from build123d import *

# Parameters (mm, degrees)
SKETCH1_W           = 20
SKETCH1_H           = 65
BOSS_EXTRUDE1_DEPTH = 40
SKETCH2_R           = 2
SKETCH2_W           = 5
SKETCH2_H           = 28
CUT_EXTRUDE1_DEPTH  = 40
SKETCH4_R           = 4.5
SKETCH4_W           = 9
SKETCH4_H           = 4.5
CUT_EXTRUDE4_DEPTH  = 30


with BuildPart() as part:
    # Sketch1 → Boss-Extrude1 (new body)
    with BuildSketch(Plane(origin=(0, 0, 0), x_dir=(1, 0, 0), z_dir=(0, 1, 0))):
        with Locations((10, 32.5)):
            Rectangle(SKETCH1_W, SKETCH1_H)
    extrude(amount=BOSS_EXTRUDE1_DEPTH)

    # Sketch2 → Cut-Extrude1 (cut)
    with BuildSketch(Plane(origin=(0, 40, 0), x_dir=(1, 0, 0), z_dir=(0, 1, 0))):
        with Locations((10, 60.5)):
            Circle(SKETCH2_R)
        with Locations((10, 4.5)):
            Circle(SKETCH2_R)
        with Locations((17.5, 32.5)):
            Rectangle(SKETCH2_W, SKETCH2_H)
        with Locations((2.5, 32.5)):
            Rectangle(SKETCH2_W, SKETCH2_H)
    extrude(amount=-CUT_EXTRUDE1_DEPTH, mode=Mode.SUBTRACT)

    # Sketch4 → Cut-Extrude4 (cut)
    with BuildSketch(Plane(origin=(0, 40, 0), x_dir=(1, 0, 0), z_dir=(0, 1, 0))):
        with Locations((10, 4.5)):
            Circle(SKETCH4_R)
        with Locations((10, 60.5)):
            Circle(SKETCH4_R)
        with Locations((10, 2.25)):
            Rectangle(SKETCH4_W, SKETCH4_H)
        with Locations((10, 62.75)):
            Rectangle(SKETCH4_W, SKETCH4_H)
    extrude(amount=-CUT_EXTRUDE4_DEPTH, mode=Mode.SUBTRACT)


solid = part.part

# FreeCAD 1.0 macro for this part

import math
import FreeCAD as App
import Part
import Sketcher


def add_polygon(sketch, points):
    """Adds a closed chain of lines whose ends are joined by coincident constraints."""
    first, n = sketch.GeometryCount, len(points)
    for a, b in zip(points, points[1:] + points[:1]):
        sketch.addGeometry(Part.LineSegment(App.Vector(*a, 0), App.Vector(*b, 0)), False)
    for i in range(n):
        sketch.addConstraint(Sketcher.Constraint("Coincident", first + i, 2, first + (i + 1) % n, 1))

doc = App.newDocument("Part")
body = doc.addObject("PartDesign::Body", "Body")

# Sketch on XZ plane
sketch1 = doc.addObject("Sketcher::SketchObject", "Sketch")
body.addObject(sketch1)
sketch1.AttachmentSupport = (doc.XZ_Plane, [""])
sketch1.MapMode = "FlatFace"
add_polygon(sketch1, [(0, -65), (0, 0), (20, 0), (20, -65)])  # lines 0-3
sketch1.addConstraint(Sketcher.Constraint("Vertical", 0))
sketch1.addConstraint(Sketcher.Constraint("Horizontal", 1))
sketch1.addConstraint(Sketcher.Constraint("Vertical", 2))
sketch1.addConstraint(Sketcher.Constraint("Horizontal", 3))
sketch1.addConstraint(Sketcher.Constraint("Coincident", 0, 2, -1, 1))
sketch1.addConstraint(Sketcher.Constraint("DistanceX", 1, 1, 1, 2, 20.0))
sketch1.addConstraint(Sketcher.Constraint("DistanceY", 0, 1, 0, 2, 65.0))
pad1 = doc.addObject("PartDesign::Pad", "Pad")
body.addObject(pad1)
pad1.Profile = sketch1
pad1.Length = 40
pad1.Reversed = True

# Sketch on XZ plane
sketch2 = doc.addObject("Sketcher::SketchObject", "Sketch001")
body.addObject(sketch2)
sketch2.AttachmentSupport = (doc.XZ_Plane, [""])
sketch2.MapMode = "FlatFace"
sketch2.AttachmentOffset = App.Placement(App.Vector(0, 0, -40), App.Rotation())
sketch2.addGeometry(Part.Circle(App.Vector(10, -60.5, 0), App.Vector(0, 0, 1), 2), False)  # 0
sketch2.addGeometry(Part.Circle(App.Vector(10, -4.5, 0), App.Vector(0, 0, 1), 2), False)  # 1
add_polygon(sketch2, [(15, -46.5), (15, -18.5), (20, -18.5), (20, -46.5)])  # lines 2-5
add_polygon(sketch2, [(0, -46.5), (0, -18.5), (5, -18.5), (5, -46.5)])  # lines 6-9
sketch2.addConstraint(Sketcher.Constraint("Vertical", 2))
sketch2.addConstraint(Sketcher.Constraint("Horizontal", 3))
sketch2.addConstraint(Sketcher.Constraint("Vertical", 4))
sketch2.addConstraint(Sketcher.Constraint("Horizontal", 5))
sketch2.addConstraint(Sketcher.Constraint("Vertical", 6))
sketch2.addConstraint(Sketcher.Constraint("Horizontal", 7))
sketch2.addConstraint(Sketcher.Constraint("Vertical", 8))
sketch2.addConstraint(Sketcher.Constraint("Horizontal", 9))
sketch2.addConstraint(Sketcher.Constraint("Equal", 0, 1))
sketch2.addConstraint(Sketcher.Constraint("PointOnObject", 6, 2, -2))
sketch2.addConstraint(Sketcher.Constraint("Horizontal", 3, 2, 6, 2))
sketch2.addConstraint(Sketcher.Constraint("Horizontal", 5, 2, 8, 2))
sketch2.addConstraint(Sketcher.Constraint("Vertical", 0, 3, 1, 3))
sketch2.addConstraint(Sketcher.Constraint("Equal", 5, 7))
sketch2.addConstraint(Sketcher.Constraint("Diameter", 0, 4.0))
sketch2.addConstraint(Sketcher.Constraint("DistanceX", 3, 1, 3, 2, 5.0))
sketch2.addConstraint(Sketcher.Constraint("DistanceY", 2, 1, 2, 2, 28.0))
sketch2.addConstraint(Sketcher.Constraint("DistanceX", -1, 1, 0, 3, 10.0))
sketch2.addConstraint(Sketcher.Constraint("DistanceX", -1, 1, 2, 2, 15.0))
sketch2.addConstraint(Sketcher.Constraint("DistanceY", 0, 3, 1, 3, 56.0))
sketch2.addConstraint(Sketcher.Constraint("DistanceY", 2, 2, 1, 3, 14.0))
sketch2.addConstraint(Sketcher.Constraint("DistanceY", 0, 3, -1, 1, 60.5))
pocket1 = doc.addObject("PartDesign::Pocket", "Pocket")
body.addObject(pocket1)
pocket1.Profile = sketch2
pocket1.Length = 40
pocket1.Reversed = True

# Sketch on XZ plane
sketch3 = doc.addObject("Sketcher::SketchObject", "Sketch002")
body.addObject(sketch3)
sketch3.AttachmentSupport = (doc.XZ_Plane, [""])
sketch3.MapMode = "FlatFace"
sketch3.AttachmentOffset = App.Placement(App.Vector(0, 0, -40), App.Rotation())
sketch3.addGeometry(Part.ArcOfCircle(Part.Circle(App.Vector(10, -4.5, 0), App.Vector(0, 0, 1), 4.5), math.radians(180), math.radians(360)), False)
sketch3.addGeometry(Part.LineSegment(App.Vector(5.5, -4.5, 0), App.Vector(5.5, 0, 0)), False)
sketch3.addGeometry(Part.LineSegment(App.Vector(5.5, 0, 0), App.Vector(14.5, 0, 0)), False)
sketch3.addGeometry(Part.LineSegment(App.Vector(14.5, 0, 0), App.Vector(14.5, -4.5, 0)), False)
sketch3.addGeometry(Part.ArcOfCircle(Part.Circle(App.Vector(10, -60.5, 0), App.Vector(0, 0, 1), 4.5), math.radians(0), math.radians(180)), False)
sketch3.addGeometry(Part.LineSegment(App.Vector(14.5, -60.5, 0), App.Vector(14.5, -65, 0)), False)
sketch3.addGeometry(Part.LineSegment(App.Vector(14.5, -65, 0), App.Vector(5.5, -65, 0)), False)
sketch3.addGeometry(Part.LineSegment(App.Vector(5.5, -65, 0), App.Vector(5.5, -60.5, 0)), False)
sketch3.addConstraint(Sketcher.Constraint("Tangent", 0, 1, 1, 1))
sketch3.addConstraint(Sketcher.Constraint("Coincident", 1, 2, 2, 1))
sketch3.addConstraint(Sketcher.Constraint("Coincident", 2, 2, 3, 1))
sketch3.addConstraint(Sketcher.Constraint("Tangent", 3, 2, 0, 2))
sketch3.addConstraint(Sketcher.Constraint("Tangent", 4, 1, 5, 1))
sketch3.addConstraint(Sketcher.Constraint("Coincident", 5, 2, 6, 1))
sketch3.addConstraint(Sketcher.Constraint("Coincident", 6, 2, 7, 1))
sketch3.addConstraint(Sketcher.Constraint("Tangent", 7, 2, 4, 2))
sketch3.addConstraint(Sketcher.Constraint("Vertical", 1))
sketch3.addConstraint(Sketcher.Constraint("Horizontal", 2))
sketch3.addConstraint(Sketcher.Constraint("Vertical", 3))
sketch3.addConstraint(Sketcher.Constraint("Vertical", 5))
sketch3.addConstraint(Sketcher.Constraint("Horizontal", 6))
sketch3.addConstraint(Sketcher.Constraint("Vertical", 7))
sketch3.addConstraint(Sketcher.Constraint("Equal", 0, 4))
sketch3.addConstraint(Sketcher.Constraint("PointOnObject", 1, 2, -1))
sketch3.addConstraint(Sketcher.Constraint("Vertical", 0, 3, 4, 3))
sketch3.addConstraint(Sketcher.Constraint("Equal", 3, 5))
sketch3.addConstraint(Sketcher.Constraint("Radius", 0, 4.5))
sketch3.addConstraint(Sketcher.Constraint("DistanceY", 1, 1, 1, 2, 4.5))
sketch3.addConstraint(Sketcher.Constraint("DistanceX", -1, 1, 0, 3, 10.0))
sketch3.addConstraint(Sketcher.Constraint("DistanceY", 5, 2, -1, 1, 65.0))
pocket2 = doc.addObject("PartDesign::Pocket", "Pocket001")
body.addObject(pocket2)
pocket2.Profile = sketch3
pocket2.Length = 30
pocket2.Reversed = True

doc.recompute()
